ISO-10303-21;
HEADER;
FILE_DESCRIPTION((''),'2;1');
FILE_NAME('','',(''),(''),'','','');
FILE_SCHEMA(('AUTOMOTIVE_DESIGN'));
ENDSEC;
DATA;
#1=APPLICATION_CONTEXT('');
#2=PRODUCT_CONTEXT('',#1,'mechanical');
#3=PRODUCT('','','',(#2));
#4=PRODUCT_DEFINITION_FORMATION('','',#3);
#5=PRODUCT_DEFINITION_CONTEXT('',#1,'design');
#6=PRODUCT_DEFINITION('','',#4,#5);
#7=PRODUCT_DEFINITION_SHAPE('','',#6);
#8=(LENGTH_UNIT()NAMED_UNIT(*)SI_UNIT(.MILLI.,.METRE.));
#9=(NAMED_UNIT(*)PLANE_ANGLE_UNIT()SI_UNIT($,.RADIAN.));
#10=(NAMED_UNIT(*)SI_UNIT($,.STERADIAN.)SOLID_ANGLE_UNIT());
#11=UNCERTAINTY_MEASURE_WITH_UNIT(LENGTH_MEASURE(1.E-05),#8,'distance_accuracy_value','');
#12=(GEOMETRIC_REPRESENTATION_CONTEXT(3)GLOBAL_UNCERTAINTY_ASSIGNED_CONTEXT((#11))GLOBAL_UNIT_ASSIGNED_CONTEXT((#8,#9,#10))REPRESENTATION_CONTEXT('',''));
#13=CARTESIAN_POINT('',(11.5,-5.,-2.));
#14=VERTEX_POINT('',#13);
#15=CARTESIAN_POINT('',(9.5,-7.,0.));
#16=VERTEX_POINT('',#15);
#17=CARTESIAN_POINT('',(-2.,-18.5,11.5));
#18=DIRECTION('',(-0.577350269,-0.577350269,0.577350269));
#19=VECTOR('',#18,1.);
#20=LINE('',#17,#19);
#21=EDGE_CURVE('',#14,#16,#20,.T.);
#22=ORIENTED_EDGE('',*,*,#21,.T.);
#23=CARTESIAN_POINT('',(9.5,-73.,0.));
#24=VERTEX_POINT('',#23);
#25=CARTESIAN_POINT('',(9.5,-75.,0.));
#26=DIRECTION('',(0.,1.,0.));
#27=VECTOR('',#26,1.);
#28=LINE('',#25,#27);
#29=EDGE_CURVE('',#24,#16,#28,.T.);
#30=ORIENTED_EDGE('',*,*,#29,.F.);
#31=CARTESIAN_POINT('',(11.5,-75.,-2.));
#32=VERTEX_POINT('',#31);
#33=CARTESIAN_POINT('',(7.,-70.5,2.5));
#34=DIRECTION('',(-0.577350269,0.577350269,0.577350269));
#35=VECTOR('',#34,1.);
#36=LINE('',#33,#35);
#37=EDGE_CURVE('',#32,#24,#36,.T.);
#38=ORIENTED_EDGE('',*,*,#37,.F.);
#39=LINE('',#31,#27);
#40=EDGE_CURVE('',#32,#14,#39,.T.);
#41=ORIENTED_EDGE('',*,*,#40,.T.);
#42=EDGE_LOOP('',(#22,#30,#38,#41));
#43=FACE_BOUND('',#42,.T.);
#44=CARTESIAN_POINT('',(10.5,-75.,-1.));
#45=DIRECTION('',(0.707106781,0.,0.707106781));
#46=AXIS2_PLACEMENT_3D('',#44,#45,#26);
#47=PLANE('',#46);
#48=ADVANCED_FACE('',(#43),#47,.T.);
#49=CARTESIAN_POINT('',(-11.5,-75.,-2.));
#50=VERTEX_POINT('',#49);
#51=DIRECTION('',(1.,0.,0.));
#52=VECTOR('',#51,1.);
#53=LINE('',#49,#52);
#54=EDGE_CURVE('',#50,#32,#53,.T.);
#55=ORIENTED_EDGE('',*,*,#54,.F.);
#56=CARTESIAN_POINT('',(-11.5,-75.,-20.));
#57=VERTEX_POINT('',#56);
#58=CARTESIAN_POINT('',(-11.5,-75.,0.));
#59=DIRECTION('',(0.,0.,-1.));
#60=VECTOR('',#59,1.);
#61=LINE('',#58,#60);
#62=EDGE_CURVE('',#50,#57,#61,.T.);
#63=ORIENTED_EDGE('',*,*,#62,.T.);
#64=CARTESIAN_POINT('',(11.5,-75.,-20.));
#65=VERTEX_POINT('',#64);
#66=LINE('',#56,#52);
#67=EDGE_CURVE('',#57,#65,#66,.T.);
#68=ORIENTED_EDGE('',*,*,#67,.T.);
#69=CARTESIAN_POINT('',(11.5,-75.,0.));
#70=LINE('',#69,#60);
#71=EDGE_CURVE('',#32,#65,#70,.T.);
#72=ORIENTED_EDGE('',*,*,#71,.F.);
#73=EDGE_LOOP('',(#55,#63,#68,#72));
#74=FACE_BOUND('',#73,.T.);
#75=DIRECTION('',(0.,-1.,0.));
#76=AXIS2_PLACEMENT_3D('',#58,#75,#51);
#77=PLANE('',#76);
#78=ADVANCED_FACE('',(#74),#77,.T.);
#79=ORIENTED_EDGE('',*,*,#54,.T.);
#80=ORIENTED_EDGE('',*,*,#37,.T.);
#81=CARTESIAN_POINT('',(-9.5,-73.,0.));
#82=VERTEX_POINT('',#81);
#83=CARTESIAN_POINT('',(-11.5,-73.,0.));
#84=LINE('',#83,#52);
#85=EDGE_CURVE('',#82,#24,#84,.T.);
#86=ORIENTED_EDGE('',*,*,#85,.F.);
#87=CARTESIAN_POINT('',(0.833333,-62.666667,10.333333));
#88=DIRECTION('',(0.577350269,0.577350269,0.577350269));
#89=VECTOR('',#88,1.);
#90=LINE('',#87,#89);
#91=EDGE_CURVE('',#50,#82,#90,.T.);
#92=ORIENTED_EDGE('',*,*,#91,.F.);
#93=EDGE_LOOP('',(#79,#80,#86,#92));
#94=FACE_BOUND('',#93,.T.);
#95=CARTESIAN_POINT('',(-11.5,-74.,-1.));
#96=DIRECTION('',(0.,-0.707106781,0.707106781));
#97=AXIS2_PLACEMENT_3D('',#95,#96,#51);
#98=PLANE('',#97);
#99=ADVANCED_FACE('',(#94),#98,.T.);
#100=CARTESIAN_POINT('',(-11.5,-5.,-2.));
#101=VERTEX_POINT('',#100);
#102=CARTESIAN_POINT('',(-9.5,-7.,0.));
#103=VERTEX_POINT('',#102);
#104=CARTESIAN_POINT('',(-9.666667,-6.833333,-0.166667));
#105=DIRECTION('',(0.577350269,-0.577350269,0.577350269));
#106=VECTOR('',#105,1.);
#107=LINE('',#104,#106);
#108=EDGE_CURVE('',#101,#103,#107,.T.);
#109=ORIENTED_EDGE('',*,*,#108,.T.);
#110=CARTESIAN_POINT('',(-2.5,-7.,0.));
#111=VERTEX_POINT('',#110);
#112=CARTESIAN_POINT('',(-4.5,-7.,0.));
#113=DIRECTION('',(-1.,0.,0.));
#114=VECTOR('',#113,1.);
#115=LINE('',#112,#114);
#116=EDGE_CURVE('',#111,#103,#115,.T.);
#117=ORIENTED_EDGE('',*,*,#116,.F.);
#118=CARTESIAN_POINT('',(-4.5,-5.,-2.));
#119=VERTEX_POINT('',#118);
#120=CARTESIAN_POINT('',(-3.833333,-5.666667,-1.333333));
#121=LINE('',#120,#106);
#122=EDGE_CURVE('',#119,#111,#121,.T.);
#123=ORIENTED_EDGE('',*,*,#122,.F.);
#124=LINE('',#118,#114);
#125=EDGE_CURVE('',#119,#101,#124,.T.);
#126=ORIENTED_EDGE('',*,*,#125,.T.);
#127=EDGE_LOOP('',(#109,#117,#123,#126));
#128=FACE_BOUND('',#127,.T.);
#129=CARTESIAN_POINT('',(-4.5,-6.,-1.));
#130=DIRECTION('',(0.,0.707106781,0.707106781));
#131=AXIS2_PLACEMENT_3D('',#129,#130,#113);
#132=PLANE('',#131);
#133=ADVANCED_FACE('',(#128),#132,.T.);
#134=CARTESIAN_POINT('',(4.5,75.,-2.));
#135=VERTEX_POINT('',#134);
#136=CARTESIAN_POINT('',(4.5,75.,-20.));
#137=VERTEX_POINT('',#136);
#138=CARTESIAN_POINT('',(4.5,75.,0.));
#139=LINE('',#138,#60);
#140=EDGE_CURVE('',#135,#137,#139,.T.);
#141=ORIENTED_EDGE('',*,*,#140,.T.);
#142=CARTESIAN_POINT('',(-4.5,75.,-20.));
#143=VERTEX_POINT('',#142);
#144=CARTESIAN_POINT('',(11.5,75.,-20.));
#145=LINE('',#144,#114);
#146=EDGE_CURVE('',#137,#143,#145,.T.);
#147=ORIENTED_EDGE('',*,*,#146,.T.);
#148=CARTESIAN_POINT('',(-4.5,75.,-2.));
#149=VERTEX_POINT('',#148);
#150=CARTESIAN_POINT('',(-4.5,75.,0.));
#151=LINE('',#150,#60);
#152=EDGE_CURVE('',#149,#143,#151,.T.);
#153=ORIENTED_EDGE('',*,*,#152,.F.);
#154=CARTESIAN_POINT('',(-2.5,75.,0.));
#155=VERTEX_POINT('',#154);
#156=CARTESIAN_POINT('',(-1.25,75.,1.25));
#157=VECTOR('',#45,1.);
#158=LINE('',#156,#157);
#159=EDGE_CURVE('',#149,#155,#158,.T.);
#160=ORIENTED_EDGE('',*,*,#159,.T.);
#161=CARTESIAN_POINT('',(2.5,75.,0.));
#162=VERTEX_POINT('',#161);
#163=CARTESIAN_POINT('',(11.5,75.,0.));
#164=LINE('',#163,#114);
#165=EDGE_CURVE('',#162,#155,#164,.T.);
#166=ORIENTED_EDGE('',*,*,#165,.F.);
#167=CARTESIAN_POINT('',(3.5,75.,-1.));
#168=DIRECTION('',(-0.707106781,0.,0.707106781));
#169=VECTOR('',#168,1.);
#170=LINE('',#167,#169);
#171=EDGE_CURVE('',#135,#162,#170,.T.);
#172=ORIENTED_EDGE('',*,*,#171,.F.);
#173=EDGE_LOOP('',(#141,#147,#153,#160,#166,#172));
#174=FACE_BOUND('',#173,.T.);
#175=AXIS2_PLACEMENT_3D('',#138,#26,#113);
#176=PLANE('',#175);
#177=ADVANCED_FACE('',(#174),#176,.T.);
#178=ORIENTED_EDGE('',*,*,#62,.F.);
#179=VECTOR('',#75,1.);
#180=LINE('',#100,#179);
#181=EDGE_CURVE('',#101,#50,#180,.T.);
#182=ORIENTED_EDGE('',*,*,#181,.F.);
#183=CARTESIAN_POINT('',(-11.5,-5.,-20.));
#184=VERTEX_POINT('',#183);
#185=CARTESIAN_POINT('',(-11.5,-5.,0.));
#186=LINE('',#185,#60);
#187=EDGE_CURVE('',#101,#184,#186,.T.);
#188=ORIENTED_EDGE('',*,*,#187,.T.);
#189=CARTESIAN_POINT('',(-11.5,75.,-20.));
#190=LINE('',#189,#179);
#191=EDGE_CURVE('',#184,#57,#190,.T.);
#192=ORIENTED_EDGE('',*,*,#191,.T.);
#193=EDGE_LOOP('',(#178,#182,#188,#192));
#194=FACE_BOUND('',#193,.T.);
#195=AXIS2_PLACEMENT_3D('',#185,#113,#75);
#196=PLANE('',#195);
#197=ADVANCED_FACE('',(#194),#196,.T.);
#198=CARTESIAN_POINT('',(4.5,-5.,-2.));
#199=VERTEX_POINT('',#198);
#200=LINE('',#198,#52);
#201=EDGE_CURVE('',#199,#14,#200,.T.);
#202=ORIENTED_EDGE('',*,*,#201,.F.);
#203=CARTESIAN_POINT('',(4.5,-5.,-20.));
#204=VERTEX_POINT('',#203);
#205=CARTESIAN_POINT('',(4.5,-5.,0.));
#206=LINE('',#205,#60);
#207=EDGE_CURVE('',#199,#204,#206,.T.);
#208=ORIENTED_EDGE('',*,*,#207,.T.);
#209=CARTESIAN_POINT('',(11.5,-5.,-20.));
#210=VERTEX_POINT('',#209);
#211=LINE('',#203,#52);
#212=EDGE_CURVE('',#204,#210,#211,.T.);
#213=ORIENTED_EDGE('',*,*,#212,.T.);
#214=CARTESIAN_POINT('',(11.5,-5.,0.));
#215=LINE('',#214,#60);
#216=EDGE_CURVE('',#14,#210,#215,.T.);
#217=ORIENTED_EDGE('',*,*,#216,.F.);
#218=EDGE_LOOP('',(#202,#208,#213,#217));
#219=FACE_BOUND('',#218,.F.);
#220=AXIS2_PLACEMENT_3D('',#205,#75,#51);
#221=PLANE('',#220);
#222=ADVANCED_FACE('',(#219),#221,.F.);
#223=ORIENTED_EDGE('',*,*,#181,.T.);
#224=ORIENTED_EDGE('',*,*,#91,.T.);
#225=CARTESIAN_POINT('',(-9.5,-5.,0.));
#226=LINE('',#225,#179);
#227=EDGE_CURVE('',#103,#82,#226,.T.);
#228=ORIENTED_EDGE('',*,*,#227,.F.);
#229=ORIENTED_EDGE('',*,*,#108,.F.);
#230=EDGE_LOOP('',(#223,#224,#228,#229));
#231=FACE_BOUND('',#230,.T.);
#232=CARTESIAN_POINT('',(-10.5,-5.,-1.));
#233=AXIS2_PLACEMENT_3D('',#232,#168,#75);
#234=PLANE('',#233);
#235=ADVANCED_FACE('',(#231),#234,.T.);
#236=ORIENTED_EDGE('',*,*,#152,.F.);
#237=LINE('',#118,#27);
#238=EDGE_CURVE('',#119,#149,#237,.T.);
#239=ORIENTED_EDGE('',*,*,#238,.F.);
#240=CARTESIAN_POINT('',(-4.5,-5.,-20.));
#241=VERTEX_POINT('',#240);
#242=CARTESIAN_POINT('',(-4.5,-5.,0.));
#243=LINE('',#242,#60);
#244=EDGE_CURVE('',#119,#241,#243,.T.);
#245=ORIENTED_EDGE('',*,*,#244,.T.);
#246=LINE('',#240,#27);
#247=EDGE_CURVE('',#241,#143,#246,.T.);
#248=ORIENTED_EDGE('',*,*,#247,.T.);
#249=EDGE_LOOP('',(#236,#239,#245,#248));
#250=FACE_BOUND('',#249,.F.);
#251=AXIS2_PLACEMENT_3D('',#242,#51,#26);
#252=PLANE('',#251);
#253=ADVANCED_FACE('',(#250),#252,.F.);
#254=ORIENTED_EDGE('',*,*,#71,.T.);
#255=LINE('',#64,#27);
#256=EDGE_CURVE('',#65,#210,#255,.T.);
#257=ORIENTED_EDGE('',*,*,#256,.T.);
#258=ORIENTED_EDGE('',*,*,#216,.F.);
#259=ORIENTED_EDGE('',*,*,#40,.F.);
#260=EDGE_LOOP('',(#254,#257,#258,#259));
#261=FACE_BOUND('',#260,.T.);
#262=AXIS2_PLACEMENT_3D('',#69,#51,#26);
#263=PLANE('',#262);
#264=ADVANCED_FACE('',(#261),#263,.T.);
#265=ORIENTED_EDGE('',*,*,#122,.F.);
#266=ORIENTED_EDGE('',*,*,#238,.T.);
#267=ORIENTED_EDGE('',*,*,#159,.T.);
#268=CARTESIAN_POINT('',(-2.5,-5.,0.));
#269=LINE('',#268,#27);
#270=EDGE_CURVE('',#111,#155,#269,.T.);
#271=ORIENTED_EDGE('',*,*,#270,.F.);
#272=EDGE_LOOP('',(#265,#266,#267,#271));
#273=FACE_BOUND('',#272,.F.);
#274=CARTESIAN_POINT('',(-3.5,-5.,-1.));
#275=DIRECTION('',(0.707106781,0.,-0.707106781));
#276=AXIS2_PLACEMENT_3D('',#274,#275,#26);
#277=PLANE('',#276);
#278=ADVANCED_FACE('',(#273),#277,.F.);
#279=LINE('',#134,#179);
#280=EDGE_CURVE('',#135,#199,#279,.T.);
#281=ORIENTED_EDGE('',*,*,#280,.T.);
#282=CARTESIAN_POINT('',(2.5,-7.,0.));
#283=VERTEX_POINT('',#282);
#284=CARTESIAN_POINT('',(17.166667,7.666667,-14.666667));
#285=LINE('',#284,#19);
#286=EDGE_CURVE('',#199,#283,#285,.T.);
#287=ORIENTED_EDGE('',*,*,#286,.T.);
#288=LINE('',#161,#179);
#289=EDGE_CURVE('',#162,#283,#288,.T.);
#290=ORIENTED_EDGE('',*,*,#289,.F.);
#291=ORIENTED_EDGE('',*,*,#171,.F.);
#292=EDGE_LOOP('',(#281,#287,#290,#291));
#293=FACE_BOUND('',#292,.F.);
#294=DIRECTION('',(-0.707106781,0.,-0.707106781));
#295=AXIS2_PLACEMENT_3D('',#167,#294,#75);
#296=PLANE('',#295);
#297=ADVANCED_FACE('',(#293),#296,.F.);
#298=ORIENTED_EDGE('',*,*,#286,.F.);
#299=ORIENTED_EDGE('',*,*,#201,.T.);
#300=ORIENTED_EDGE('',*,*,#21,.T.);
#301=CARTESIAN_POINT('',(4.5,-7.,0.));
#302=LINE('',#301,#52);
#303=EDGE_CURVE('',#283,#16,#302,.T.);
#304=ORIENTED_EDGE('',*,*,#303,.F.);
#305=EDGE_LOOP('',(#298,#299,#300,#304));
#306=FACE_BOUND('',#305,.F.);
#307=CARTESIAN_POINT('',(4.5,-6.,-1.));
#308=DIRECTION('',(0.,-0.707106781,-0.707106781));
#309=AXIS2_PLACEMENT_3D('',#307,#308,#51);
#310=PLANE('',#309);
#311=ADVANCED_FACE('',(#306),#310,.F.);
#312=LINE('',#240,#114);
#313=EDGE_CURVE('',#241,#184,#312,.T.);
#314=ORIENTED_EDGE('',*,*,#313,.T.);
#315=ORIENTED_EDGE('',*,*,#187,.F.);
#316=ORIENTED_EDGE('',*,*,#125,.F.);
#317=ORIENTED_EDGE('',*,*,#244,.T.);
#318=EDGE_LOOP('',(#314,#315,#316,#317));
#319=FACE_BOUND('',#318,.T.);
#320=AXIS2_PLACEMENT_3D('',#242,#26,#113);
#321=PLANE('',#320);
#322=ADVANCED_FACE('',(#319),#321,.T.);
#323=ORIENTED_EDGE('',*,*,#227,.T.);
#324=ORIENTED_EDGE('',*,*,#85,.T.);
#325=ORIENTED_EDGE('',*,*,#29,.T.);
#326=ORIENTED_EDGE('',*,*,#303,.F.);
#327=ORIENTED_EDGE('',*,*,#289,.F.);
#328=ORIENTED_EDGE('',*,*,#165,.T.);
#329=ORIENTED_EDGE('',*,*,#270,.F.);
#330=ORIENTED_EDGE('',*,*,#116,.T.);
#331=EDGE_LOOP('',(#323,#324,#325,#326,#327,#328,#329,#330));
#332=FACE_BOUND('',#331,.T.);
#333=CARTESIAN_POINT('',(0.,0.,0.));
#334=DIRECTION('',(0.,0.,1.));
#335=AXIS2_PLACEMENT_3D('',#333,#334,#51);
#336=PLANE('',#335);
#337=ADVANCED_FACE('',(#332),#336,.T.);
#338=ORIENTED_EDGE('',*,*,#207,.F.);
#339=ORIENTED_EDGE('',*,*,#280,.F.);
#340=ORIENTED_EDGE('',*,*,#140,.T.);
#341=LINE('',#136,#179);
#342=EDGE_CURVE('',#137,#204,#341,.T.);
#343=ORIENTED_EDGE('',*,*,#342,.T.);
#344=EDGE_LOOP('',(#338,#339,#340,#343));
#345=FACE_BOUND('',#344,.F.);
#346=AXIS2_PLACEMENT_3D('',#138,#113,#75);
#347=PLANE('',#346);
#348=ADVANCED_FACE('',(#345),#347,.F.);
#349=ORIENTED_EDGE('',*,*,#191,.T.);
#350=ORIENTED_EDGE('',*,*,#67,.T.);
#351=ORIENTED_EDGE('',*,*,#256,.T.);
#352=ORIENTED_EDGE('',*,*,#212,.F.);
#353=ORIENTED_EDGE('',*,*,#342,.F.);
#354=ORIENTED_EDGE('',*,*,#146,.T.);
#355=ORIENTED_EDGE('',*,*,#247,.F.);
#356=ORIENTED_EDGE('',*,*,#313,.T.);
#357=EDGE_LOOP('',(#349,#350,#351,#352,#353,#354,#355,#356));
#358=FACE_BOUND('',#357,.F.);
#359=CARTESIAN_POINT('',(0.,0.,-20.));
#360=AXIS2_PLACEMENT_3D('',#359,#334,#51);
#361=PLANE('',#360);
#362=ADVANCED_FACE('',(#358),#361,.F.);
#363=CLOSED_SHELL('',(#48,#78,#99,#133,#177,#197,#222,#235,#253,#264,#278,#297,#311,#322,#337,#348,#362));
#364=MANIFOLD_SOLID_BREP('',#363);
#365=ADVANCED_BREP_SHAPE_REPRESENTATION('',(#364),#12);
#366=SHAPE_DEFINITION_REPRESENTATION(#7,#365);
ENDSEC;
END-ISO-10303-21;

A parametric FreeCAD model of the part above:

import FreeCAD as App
import Part
import Sketcher


def edges_at(feature, points):
    """Names of the edges that pass closest to the given points."""
    edges = feature.Shape.Edges
    near = lambda p: min(range(len(edges)), key=lambda i: edges[i].distToShape(Part.Vertex(*p))[0])
    return sorted({f"Edge{near(p) + 1}" for p in points})


def add_polygon(sketch, points):
    """Adds a closed chain of lines whose ends are joined by coincident constraints."""
    first, n = sketch.GeometryCount, len(points)
    for a, b in zip(points, points[1:] + points[:1]):
        sketch.addGeometry(Part.LineSegment(App.Vector(*a, 0), App.Vector(*b, 0)), False)
    for i in range(n):
        sketch.addConstraint(Sketcher.Constraint("Coincident", first + i, 2, first + (i + 1) % n, 1))

doc = App.newDocument("Part")
body = doc.addObject("PartDesign::Body", "Body")

sketch1 = body.newObject("Sketcher::SketchObject", "Sketch")
sketch1.AttachmentSupport = (doc.getObject("XY_Plane"), [""])
sketch1.MapMode = "FlatFace"
add_polygon(sketch1, [(-12, -5), (-12, -75), (12, -75), (12, -5), (4, -5), (4, 75), (-4, 75), (-4, -5)])
sketch1.addConstraint([
    Sketcher.Constraint("Vertical", 0),
    Sketcher.Constraint("Horizontal", 1),
    Sketcher.Constraint("Vertical", 2),
    Sketcher.Constraint("Horizontal", 3),
    Sketcher.Constraint("Vertical", 4),
    Sketcher.Constraint("Horizontal", 5),
    Sketcher.Constraint("Vertical", 6),
    Sketcher.Constraint("Horizontal", 7),
    Sketcher.Constraint("Symmetric", 3, 2, 6, 2, -2),
    Sketcher.Constraint("Equal", 3, 7),
    Sketcher.Constraint("DistanceX", 1, 1, 1, 2, 23.0),
    Sketcher.Constraint("DistanceX", 3, 2, 3, 1, 7.0),
    Sketcher.Constraint("DistanceY", 4, 1, 4, 2, 80.0),
    Sketcher.Constraint("DistanceY", 1, 2, 4, 2, 150.0),
    Sketcher.Constraint("DistanceY", 0, 2, -1, 1, 75.0),
])
pad1 = body.newObject("PartDesign::Pad", "Pad")
pad1.Profile = sketch1
pad1.Length = 20
pad1.Reversed = True
doc.recompute()

chamfer = body.newObject("PartDesign::Chamfer", "Chamfer")
chamfer.Base = (pad1, edges_at(pad1, [
    (0, -75, 0),
    (-11.5, -40, 0),
    (11.5, -40, 0),
    (8, -5, 0),
    (-8, -5, 0),
    (-4.5, 35, 0),
    (4.5, 35, 0),
]))
chamfer.Size = 2

doc.recompute()
